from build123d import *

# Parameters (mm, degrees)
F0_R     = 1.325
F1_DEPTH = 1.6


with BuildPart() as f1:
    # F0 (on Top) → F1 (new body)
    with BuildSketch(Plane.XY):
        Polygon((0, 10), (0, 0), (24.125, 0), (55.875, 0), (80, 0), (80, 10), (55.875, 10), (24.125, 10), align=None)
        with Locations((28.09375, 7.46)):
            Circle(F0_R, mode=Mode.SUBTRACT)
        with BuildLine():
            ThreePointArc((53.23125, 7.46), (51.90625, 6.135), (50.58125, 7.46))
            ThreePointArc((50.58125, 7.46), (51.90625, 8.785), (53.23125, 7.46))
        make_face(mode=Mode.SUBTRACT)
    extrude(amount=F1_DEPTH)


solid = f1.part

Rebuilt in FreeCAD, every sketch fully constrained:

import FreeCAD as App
import Part
import Sketcher
from FreeCAD import Vector
Q = App.Units.Quantity

doc = App.newDocument("Part")
params = doc.addObject("Spreadsheet::Sheet", "Params")
for row, (alias, value) in enumerate([
    ("sketch1_diameter", "2.65 mm"),
    ("sketch1_width", "80 mm"),
    ("sketch1_height", "10 mm"),
    ("pad1_length", "1.6 mm"),
], start=1):
    params.set(f"A{row}", alias)
    params.set(f"B{row}", "=" + value)
    params.setAlias(f"B{row}", alias)

body = doc.addObject("PartDesign::Body", "Body")

# Sketch on XY plane
sketch1 = doc.addObject("Sketcher::SketchObject", "Sketch")
body.addObject(sketch1)
sketch1.AttachmentSupport = (doc.XY_Plane, [""])
sketch1.MapMode = "FlatFace"
sketch1.addGeometry(Part.LineSegment(Vector(0, 10, 0), Vector(0, 0, 0)), False)
sketch1.addGeometry(Part.LineSegment(Vector(0, 0, 0), Vector(80, 0, 0)), False)
sketch1.addGeometry(Part.LineSegment(Vector(80, 0, 0), Vector(80, 10, 0)), False)
sketch1.addGeometry(Part.LineSegment(Vector(80, 10, 0), Vector(0, 10, 0)), False)
sketch1.addGeometry(Part.Circle(Vector(28.09375, 7.46, 0), Vector(0, 0, 1), 1.325), False)
sketch1.addGeometry(Part.Circle(Vector(51.90625, 7.46, 0), Vector(0, 0, 1), 1.325), False)
sketch1.addConstraint(Sketcher.Constraint("Coincident", 0, 2, 1, 1))
sketch1.addConstraint(Sketcher.Constraint("Coincident", 1, 2, 2, 1))
sketch1.addConstraint(Sketcher.Constraint("Coincident", 2, 2, 3, 1))
sketch1.addConstraint(Sketcher.Constraint("Coincident", 3, 2, 0, 1))
sketch1.addConstraint(Sketcher.Constraint("Vertical", 0))
sketch1.addConstraint(Sketcher.Constraint("Horizontal", 1))
sketch1.addConstraint(Sketcher.Constraint("Vertical", 2))
sketch1.addConstraint(Sketcher.Constraint("Horizontal", 3))
sketch1.addConstraint(Sketcher.Constraint("Coincident", 0, 2, -1, 1))
sketch1.addConstraint(Sketcher.Constraint("Equal", 4, 5))
sketch1.addConstraint(Sketcher.Constraint("Horizontal", 4, 3, 5, 3))
sketch1.addConstraint(Sketcher.Constraint("Diameter", 4, Q("2.65 mm")))
sketch1.addConstraint(Sketcher.Constraint("DistanceX", 1, 1, 1, 2, Q("80 mm")))
sketch1.addConstraint(Sketcher.Constraint("DistanceY", 0, 2, 0, 1, Q("10 mm")))
sketch1.addConstraint(Sketcher.Constraint("DistanceY", -1, 1, 4, 3, Q("7.46 mm")))
sketch1.addConstraint(Sketcher.Constraint("DistanceX", 4, 3, 5, 3, Q("23.8125 mm")))
sketch1.addConstraint(Sketcher.Constraint("DistanceX", -1, 1, 4, 3, Q("28.09375 mm")))
sketch1.setExpression("Constraints[11]", "Params.sketch1_diameter")
sketch1.setExpression("Constraints[12]", "Params.sketch1_width")
sketch1.setExpression("Constraints[13]", "Params.sketch1_height")
pad1 = doc.addObject("PartDesign::Pad", "Pad")
body.addObject(pad1)
pad1.Profile = sketch1
pad1.setExpression("Length", "Params.pad1_length")

doc.recompute()
